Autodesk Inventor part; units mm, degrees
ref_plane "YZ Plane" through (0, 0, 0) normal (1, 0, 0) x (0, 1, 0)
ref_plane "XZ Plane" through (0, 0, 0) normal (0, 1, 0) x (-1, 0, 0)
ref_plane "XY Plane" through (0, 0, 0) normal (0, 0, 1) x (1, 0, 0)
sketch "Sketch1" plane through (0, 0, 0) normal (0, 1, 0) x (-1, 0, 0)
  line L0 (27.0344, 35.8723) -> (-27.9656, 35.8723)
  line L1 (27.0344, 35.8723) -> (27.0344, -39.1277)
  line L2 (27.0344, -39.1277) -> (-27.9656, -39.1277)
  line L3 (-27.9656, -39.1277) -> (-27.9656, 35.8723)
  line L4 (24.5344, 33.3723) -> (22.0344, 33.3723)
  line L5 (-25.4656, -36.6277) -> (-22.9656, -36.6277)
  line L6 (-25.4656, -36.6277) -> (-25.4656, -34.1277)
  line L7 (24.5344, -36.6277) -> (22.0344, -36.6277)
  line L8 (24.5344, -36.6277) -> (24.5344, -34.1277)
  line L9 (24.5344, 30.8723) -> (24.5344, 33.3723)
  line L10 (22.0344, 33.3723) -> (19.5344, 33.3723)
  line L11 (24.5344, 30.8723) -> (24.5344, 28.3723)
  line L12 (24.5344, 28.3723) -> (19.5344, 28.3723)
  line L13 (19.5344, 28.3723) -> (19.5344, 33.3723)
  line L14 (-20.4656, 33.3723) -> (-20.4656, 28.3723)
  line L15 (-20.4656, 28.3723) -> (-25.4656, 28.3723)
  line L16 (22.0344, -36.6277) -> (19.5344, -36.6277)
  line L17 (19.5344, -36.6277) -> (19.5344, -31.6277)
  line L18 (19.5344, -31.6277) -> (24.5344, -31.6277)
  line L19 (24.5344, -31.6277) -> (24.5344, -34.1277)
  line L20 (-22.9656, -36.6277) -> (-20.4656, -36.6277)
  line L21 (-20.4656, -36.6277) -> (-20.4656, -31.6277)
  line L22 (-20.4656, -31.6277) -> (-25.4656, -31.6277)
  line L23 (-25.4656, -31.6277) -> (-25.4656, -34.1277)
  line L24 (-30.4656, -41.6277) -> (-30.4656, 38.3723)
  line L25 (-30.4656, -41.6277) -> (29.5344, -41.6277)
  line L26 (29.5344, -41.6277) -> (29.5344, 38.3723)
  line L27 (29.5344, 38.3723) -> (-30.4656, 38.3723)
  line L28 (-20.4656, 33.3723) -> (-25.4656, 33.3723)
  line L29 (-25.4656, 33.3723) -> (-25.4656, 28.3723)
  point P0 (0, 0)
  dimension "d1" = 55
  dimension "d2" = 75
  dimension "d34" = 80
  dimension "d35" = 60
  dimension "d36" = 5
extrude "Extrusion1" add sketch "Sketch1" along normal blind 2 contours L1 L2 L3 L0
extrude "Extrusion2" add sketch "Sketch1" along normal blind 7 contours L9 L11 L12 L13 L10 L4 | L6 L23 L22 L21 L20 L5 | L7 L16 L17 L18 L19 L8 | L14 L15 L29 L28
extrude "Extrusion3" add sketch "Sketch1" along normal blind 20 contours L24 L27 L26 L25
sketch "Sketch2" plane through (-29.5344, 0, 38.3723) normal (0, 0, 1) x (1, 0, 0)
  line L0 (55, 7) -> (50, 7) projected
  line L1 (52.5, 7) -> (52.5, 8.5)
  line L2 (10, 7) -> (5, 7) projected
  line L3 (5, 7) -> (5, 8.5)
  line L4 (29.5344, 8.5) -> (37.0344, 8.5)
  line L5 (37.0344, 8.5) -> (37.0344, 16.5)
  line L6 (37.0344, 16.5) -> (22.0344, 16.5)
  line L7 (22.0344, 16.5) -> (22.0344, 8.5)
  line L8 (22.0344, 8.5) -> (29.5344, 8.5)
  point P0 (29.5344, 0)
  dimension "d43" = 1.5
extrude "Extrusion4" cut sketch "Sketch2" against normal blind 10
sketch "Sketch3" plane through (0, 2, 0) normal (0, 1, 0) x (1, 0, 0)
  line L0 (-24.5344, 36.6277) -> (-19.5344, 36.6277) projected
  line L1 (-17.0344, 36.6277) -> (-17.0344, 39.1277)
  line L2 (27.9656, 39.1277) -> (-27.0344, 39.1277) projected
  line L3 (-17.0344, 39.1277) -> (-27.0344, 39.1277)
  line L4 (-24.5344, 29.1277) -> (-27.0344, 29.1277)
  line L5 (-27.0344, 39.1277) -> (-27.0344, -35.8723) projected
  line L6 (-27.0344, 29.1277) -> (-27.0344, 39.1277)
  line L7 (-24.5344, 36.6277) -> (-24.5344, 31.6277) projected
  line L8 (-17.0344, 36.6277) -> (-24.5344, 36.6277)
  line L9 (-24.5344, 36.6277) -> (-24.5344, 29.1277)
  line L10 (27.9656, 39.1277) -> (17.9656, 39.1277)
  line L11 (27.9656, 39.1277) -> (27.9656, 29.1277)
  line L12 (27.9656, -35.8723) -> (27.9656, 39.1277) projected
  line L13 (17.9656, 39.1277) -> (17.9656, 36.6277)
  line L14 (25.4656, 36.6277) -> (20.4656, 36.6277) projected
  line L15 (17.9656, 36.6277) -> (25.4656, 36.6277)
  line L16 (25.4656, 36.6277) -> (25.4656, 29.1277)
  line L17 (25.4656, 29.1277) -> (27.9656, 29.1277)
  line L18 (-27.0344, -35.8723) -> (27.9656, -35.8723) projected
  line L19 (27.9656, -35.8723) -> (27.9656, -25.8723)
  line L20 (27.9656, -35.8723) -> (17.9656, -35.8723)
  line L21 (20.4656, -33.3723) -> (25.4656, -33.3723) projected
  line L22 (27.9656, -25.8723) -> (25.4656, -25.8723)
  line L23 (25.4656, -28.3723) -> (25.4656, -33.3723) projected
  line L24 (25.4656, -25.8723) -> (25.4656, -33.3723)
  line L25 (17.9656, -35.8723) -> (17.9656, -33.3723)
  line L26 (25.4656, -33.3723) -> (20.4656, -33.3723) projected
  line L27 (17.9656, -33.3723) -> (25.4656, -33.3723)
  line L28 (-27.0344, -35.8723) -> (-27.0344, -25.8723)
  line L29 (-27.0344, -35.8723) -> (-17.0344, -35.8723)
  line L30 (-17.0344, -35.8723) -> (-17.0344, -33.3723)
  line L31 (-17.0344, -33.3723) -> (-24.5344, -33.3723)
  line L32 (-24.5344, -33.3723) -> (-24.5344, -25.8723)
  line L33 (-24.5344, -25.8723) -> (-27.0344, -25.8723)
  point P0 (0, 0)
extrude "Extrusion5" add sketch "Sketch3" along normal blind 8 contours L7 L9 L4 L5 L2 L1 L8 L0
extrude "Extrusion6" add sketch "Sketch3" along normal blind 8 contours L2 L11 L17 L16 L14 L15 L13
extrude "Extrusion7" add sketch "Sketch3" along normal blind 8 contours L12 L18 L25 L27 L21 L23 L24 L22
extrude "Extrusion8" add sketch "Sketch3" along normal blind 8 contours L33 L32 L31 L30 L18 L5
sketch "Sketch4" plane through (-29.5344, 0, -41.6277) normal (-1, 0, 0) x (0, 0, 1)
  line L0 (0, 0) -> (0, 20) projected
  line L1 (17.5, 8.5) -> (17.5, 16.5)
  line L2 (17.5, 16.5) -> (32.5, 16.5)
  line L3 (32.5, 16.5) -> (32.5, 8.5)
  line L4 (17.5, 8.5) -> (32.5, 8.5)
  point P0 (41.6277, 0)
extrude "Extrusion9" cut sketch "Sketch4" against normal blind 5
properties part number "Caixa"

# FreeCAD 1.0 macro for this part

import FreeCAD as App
import Part
import Sketcher
Q = App.Units.Quantity


def add_polygon(sketch, points):
    """Adds a closed chain of lines whose ends are joined by coincident constraints."""
    first, n = sketch.GeometryCount, len(points)
    for a, b in zip(points, points[1:] + points[:1]):
        sketch.addGeometry(Part.LineSegment(App.Vector(*a, 0), App.Vector(*b, 0)), False)
    for i in range(n):
        sketch.addConstraint(Sketcher.Constraint("Coincident", first + i, 2, first + (i + 1) % n, 1))

doc = App.newDocument("Part")
body = doc.addObject("PartDesign::Body", "Body")

# Sketch on XZ plane
sketch1 = body.newObject("Sketcher::SketchObject", "Sketch")
sketch1.AttachmentSupport = (doc.getObject("XZ_Plane"), [""])
sketch1.MapMode = "FlatFace"
add_polygon(sketch1, [(-27, -39.1), (-27, 35.9), (28, 35.9), (28, -39.1)])  # lines 0-3
add_polygon(sketch1, [(20.5, -36.6), (25.5, -36.6), (25.5, -31.6), (20.5, -31.6)])  # lines 4-7
add_polygon(sketch1, [(-24.5, -31.6), (-24.5, -36.6), (-19.5, -36.6), (-19.5, -31.6)])  # lines 8-11
add_polygon(sketch1, [(25.5, 33.4), (20.5, 33.4), (20.5, 28.4), (25.5, 28.4)])  # lines 12-15
add_polygon(sketch1, [(-19.5, 33.4), (-24.5, 33.4), (-24.5, 28.4), (-19.5, 28.4)])  # lines 16-19
sketch1.addConstraint(Sketcher.Constraint("Vertical", 0))
sketch1.addConstraint(Sketcher.Constraint("Horizontal", 1))
sketch1.addConstraint(Sketcher.Constraint("Vertical", 2))
sketch1.addConstraint(Sketcher.Constraint("Horizontal", 3))
sketch1.addConstraint(Sketcher.Constraint("Horizontal", 4))
sketch1.addConstraint(Sketcher.Constraint("Vertical", 5))
sketch1.addConstraint(Sketcher.Constraint("Horizontal", 6))
sketch1.addConstraint(Sketcher.Constraint("Vertical", 7))
sketch1.addConstraint(Sketcher.Constraint("Vertical", 8))
sketch1.addConstraint(Sketcher.Constraint("Horizontal", 9))
sketch1.addConstraint(Sketcher.Constraint("Vertical", 10))
sketch1.addConstraint(Sketcher.Constraint("Horizontal", 11))
sketch1.addConstraint(Sketcher.Constraint("Horizontal", 12))
sketch1.addConstraint(Sketcher.Constraint("Vertical", 13))
sketch1.addConstraint(Sketcher.Constraint("Horizontal", 14))
sketch1.addConstraint(Sketcher.Constraint("Vertical", 15))
sketch1.addConstraint(Sketcher.Constraint("Horizontal", 16))
sketch1.addConstraint(Sketcher.Constraint("Vertical", 17))
sketch1.addConstraint(Sketcher.Constraint("Horizontal", 18))
sketch1.addConstraint(Sketcher.Constraint("Vertical", 19))
sketch1.addConstraint(Sketcher.Constraint("Horizontal", 7, 2, 8, 2))
sketch1.addConstraint(Sketcher.Constraint("Horizontal", 6, 2, 10, 2))
sketch1.addConstraint(Sketcher.Constraint("Horizontal", 15, 2, 16, 2))
sketch1.addConstraint(Sketcher.Constraint("Horizontal", 14, 2, 17, 2))
sketch1.addConstraint(Sketcher.Constraint("Vertical", 7, 2, 12, 2))
sketch1.addConstraint(Sketcher.Constraint("Vertical", 5, 2, 14, 2))
sketch1.addConstraint(Sketcher.Constraint("Vertical", 11, 2, 16, 2))
sketch1.addConstraint(Sketcher.Constraint("Vertical", 10, 2, 18, 2))
sketch1.addConstraint(Sketcher.Constraint("Equal", 6, 9))
sketch1.addConstraint(Sketcher.Constraint("Equal", 18, 5))
sketch1.addConstraint(Sketcher.Constraint("Equal", 10, 13))
sketch1.addConstraint(Sketcher.Constraint("DistanceX", 1, 1, 1, 2, Q("55 mm")))
sketch1.addConstraint(Sketcher.Constraint("DistanceX", 4, 1, 4, 2, Q("5 mm")))
sketch1.addConstraint(Sketcher.Constraint("DistanceY", 0, 1, 0, 2, Q("75 mm")))
sketch1.addConstraint(Sketcher.Constraint("DistanceY", 6, 2, 13, 2, Q("60 mm")))
sketch1.addConstraint(Sketcher.Constraint("DistanceX", 8, 2, 7, 2, Q("45 mm")))
sketch1.addConstraint(Sketcher.Constraint("DistanceX", 4, 2, 2, 2, Q("2.5 mm")))
sketch1.addConstraint(Sketcher.Constraint("DistanceY", 2, 2, 4, 2, Q("2.5 mm")))
sketch1.addConstraint(Sketcher.Constraint("DistanceX", 0, 2, -1, 1, Q("27.0344 mm")))
sketch1.addConstraint(Sketcher.Constraint("DistanceY", -1, 1, 0, 2, Q("35.8723 mm")))
pad1 = body.newObject("PartDesign::Pad", "Pad")
pad1.Profile = sketch1
pad1.Length = 2
pad1.Reversed = True

# Sketch on XZ plane
sketch2 = body.newObject("Sketcher::SketchObject", "Sketch001")
sketch2.AttachmentSupport = (doc.getObject("XZ_Plane"), [""])
sketch2.MapMode = "FlatFace"
add_polygon(sketch2, [(-24.5, 28.4), (-24.5, 33.4), (-19.5, 33.4), (-19.5, 28.4)])  # lines 0-3
add_polygon(sketch2, [(25.5, -31.6), (25.5, -36.6), (20.5, -36.6), (20.5, -31.6)])  # lines 4-7
add_polygon(sketch2, [(-19.5, -36.6), (-24.5, -36.6), (-24.5, -31.6), (-19.5, -31.6)])  # lines 8-11
add_polygon(sketch2, [(20.5, 28.4), (20.5, 33.4), (25.5, 33.4), (25.5, 28.4)])  # lines 12-15
sketch2.addConstraint(Sketcher.Constraint("Vertical", 0))
sketch2.addConstraint(Sketcher.Constraint("Horizontal", 1))
sketch2.addConstraint(Sketcher.Constraint("Vertical", 2))
sketch2.addConstraint(Sketcher.Constraint("Horizontal", 3))
sketch2.addConstraint(Sketcher.Constraint("Vertical", 4))
sketch2.addConstraint(Sketcher.Constraint("Horizontal", 5))
sketch2.addConstraint(Sketcher.Constraint("Vertical", 6))
sketch2.addConstraint(Sketcher.Constraint("Horizontal", 7))
sketch2.addConstraint(Sketcher.Constraint("Horizontal", 8))
sketch2.addConstraint(Sketcher.Constraint("Vertical", 9))
sketch2.addConstraint(Sketcher.Constraint("Horizontal", 10))
sketch2.addConstraint(Sketcher.Constraint("Vertical", 11))
sketch2.addConstraint(Sketcher.Constraint("Vertical", 12))
sketch2.addConstraint(Sketcher.Constraint("Horizontal", 13))
sketch2.addConstraint(Sketcher.Constraint("Vertical", 14))
sketch2.addConstraint(Sketcher.Constraint("Horizontal", 15))
sketch2.addConstraint(Sketcher.Constraint("Horizontal", 5, 2, 8, 2))
sketch2.addConstraint(Sketcher.Constraint("Horizontal", 7, 2, 9, 2))
sketch2.addConstraint(Sketcher.Constraint("Horizontal", 1, 2, 12, 2))
sketch2.addConstraint(Sketcher.Constraint("Horizontal", 3, 2, 14, 2))
sketch2.addConstraint(Sketcher.Constraint("Vertical", 3, 2, 8, 2))
sketch2.addConstraint(Sketcher.Constraint("Vertical", 2, 2, 10, 2))
sketch2.addConstraint(Sketcher.Constraint("Vertical", 6, 2, 12, 2))
sketch2.addConstraint(Sketcher.Constraint("Vertical", 7, 2, 13, 2))
sketch2.addConstraint(Sketcher.Constraint("Equal", 3, 5))
sketch2.addConstraint(Sketcher.Constraint("Equal", 15, 0))
sketch2.addConstraint(Sketcher.Constraint("Equal", 2, 4))
sketch2.addConstraint(Sketcher.Constraint("DistanceX", 1, 1, 1, 2, Q("5 mm")))
sketch2.addConstraint(Sketcher.Constraint("DistanceY", 6, 2, 2, 2, Q("60 mm")))
sketch2.addConstraint(Sketcher.Constraint("DistanceX", 2, 2, 4, 2, Q("45 mm")))
sketch2.addConstraint(Sketcher.Constraint("DistanceX", 0, 2, -1, 1, Q("24.5344 mm")))
sketch2.addConstraint(Sketcher.Constraint("DistanceY", -1, 1, 0, 2, Q("33.3723 mm")))
pad2 = body.newObject("PartDesign::Pad", "Pad001")
pad2.Profile = sketch2
pad2.Length = 7
pad2.Reversed = True

# Sketch on XZ plane
sketch3 = body.newObject("Sketcher::SketchObject", "Sketch002")
sketch3.AttachmentSupport = (doc.getObject("XZ_Plane"), [""])
sketch3.MapMode = "FlatFace"
add_polygon(sketch3, [(30, 38), (30, -42), (-30, -42), (-30, 38)])  # lines 0-3
add_polygon(sketch3, [(28, 36), (-27, 36), (-27, -39), (28, -39)])  # lines 4-7
sketch3.addConstraint(Sketcher.Constraint("Vertical", 0))
sketch3.addConstraint(Sketcher.Constraint("Horizontal", 1))
sketch3.addConstraint(Sketcher.Constraint("Vertical", 2))
sketch3.addConstraint(Sketcher.Constraint("Horizontal", 3))
sketch3.addConstraint(Sketcher.Constraint("Horizontal", 4))
sketch3.addConstraint(Sketcher.Constraint("Vertical", 5))
sketch3.addConstraint(Sketcher.Constraint("Horizontal", 6))
sketch3.addConstraint(Sketcher.Constraint("Vertical", 7))
sketch3.addConstraint(Sketcher.Constraint("DistanceX", 1, 2, 1, 1, Q("60 mm")))
sketch3.addConstraint(Sketcher.Constraint("DistanceX", 4, 2, 4, 1, Q("55 mm")))
sketch3.addConstraint(Sketcher.Constraint("DistanceY", 0, 2, 0, 1, Q("80 mm")))
sketch3.addConstraint(Sketcher.Constraint("DistanceY", 5, 2, 5, 1, Q("75 mm")))
sketch3.addConstraint(Sketcher.Constraint("DistanceX", 2, 2, 4, 2, Q("2.5 mm")))
sketch3.addConstraint(Sketcher.Constraint("DistanceY", 4, 2, 2, 2, Q("2.5 mm")))
sketch3.addConstraint(Sketcher.Constraint("DistanceX", -1, 1, 0, 2, Q("30.4656 mm")))
sketch3.addConstraint(Sketcher.Constraint("DistanceY", 0, 2, -1, 1, Q("41.6277 mm")))
pad3 = body.newObject("PartDesign::Pad", "Pad002")
pad3.Profile = sketch3
pad3.Length = 20
pad3.Reversed = True

# Sketch on XY plane
sketch4 = body.newObject("Sketcher::SketchObject", "Sketch003")
sketch4.AttachmentSupport = (doc.getObject("XY_Plane"), [""])
sketch4.MapMode = "FlatFace"
sketch4.AttachmentOffset = App.Placement(App.Vector(0, 0, 38.3723), App.Rotation())
add_polygon(sketch4, [(-8, 8), (8, 8), (8, 16), (-8, 16)])  # lines 0-3
sketch4.addConstraint(Sketcher.Constraint("Horizontal", 0))
sketch4.addConstraint(Sketcher.Constraint("Vertical", 1))
sketch4.addConstraint(Sketcher.Constraint("Horizontal", 2))
sketch4.addConstraint(Sketcher.Constraint("Vertical", 3))
sketch4.addConstraint(Sketcher.Constraint("DistanceX", 0, 1, 0, 2, Q("15 mm")))
sketch4.addConstraint(Sketcher.Constraint("DistanceY", 1, 1, 1, 2, Q("8 mm")))
sketch4.addConstraint(Sketcher.Constraint("DistanceX", -1, 1, 0, 2, Q("7.5 mm")))
sketch4.addConstraint(Sketcher.Constraint("DistanceY", -1, 1, 0, 2, Q("8.5 mm")))
pocket1 = body.newObject("PartDesign::Pocket", "Pocket")
pocket1.Profile = sketch4
pocket1.Length = 10

# Sketch on XZ plane
sketch5 = body.newObject("Sketcher::SketchObject", "Sketch004")
sketch5.AttachmentSupport = (doc.getObject("XZ_Plane"), [""])
sketch5.MapMode = "FlatFace"
sketch5.AttachmentOffset = App.Placement(App.Vector(0, 0, -2), App.Rotation())
add_polygon(sketch5, [(-24.5, -29.1), (-24.5, -36.6), (-17, -36.6), (-17, -39.1), (-27, -39.1), (-27, -29.1)])  # lines 0-5
sketch5.addConstraint(Sketcher.Constraint("Vertical", 0))
sketch5.addConstraint(Sketcher.Constraint("Horizontal", 1))
sketch5.addConstraint(Sketcher.Constraint("Vertical", 2))
sketch5.addConstraint(Sketcher.Constraint("Horizontal", 3))
sketch5.addConstraint(Sketcher.Constraint("Vertical", 4))
sketch5.addConstraint(Sketcher.Constraint("Horizontal", 5))
sketch5.addConstraint(Sketcher.Constraint("Equal", 1, 0))
sketch5.addConstraint(Sketcher.Constraint("Equal", 5, 2))
sketch5.addConstraint(Sketcher.Constraint("DistanceX", 3, 2, 3, 1, Q("10 mm")))
sketch5.addConstraint(Sketcher.Constraint("DistanceX", 1, 1, 1, 2, Q("7.5 mm")))
sketch5.addConstraint(Sketcher.Constraint("DistanceX", 0, 2, -1, 1, Q("24.5344 mm")))
sketch5.addConstraint(Sketcher.Constraint("DistanceY", 0, 2, -1, 1, Q("36.6277 mm")))
pad4 = body.newObject("PartDesign::Pad", "Pad003")
pad4.Profile = sketch5
pad4.Length = 8
pad4.Reversed = True

# Sketch on XZ plane
sketch6 = body.newObject("Sketcher::SketchObject", "Sketch005")
sketch6.AttachmentSupport = (doc.getObject("XZ_Plane"), [""])
sketch6.MapMode = "FlatFace"
sketch6.AttachmentOffset = App.Placement(App.Vector(0, 0, -2), App.Rotation())
add_polygon(sketch6, [(28, -39.1), (18, -39.1), (18, -36.6), (25.5, -36.6), (25.5, -29.1), (28, -29.1)])  # lines 0-5
sketch6.addConstraint(Sketcher.Constraint("Horizontal", 0))
sketch6.addConstraint(Sketcher.Constraint("Vertical", 1))
sketch6.addConstraint(Sketcher.Constraint("Horizontal", 2))
sketch6.addConstraint(Sketcher.Constraint("Vertical", 3))
sketch6.addConstraint(Sketcher.Constraint("Horizontal", 4))
sketch6.addConstraint(Sketcher.Constraint("Vertical", 5))
sketch6.addConstraint(Sketcher.Constraint("Equal", 4, 1))
sketch6.addConstraint(Sketcher.Constraint("Equal", 2, 3))
sketch6.addConstraint(Sketcher.Constraint("DistanceX", 0, 2, 0, 1, Q("10 mm")))
sketch6.addConstraint(Sketcher.Constraint("DistanceX", 2, 1, 2, 2, Q("7.5 mm")))
sketch6.addConstraint(Sketcher.Constraint("DistanceX", -1, 1, 0, 2, Q("17.9656 mm")))
sketch6.addConstraint(Sketcher.Constraint("DistanceY", 0, 2, -1, 1, Q("39.1277 mm")))
pad5 = body.newObject("PartDesign::Pad", "Pad004")
pad5.Profile = sketch6
pad5.Length = 8
pad5.Reversed = True

# Sketch on XZ plane
sketch7 = body.newObject("Sketcher::SketchObject", "Sketch006")
sketch7.AttachmentSupport = (doc.getObject("XZ_Plane"), [""])
sketch7.MapMode = "FlatFace"
sketch7.AttachmentOffset = App.Placement(App.Vector(0, 0, -2), App.Rotation())
add_polygon(sketch7, [(28, 35.9), (28, 25.9), (25.5, 25.9), (25.5, 33.4), (18, 33.4), (18, 35.9)])  # lines 0-5
sketch7.addConstraint(Sketcher.Constraint("Vertical", 0))
sketch7.addConstraint(Sketcher.Constraint("Horizontal", 1))
sketch7.addConstraint(Sketcher.Constraint("Vertical", 2))
sketch7.addConstraint(Sketcher.Constraint("Horizontal", 3))
sketch7.addConstraint(Sketcher.Constraint("Vertical", 4))
sketch7.addConstraint(Sketcher.Constraint("Horizontal", 5))
sketch7.addConstraint(Sketcher.Constraint("Equal", 5, 0))
sketch7.addConstraint(Sketcher.Constraint("Equal", 3, 2))
sketch7.addConstraint(Sketcher.Constraint("DistanceX", 5, 1, 5, 2, Q("10 mm")))
sketch7.addConstraint(Sketcher.Constraint("DistanceX", 1, 2, 1, 1, Q("2.5 mm")))
sketch7.addConstraint(Sketcher.Constraint("DistanceX", -1, 1, 0, 2, Q("27.9656 mm")))
sketch7.addConstraint(Sketcher.Constraint("DistanceY", -1, 1, 0, 2, Q("25.8723 mm")))
pad6 = body.newObject("PartDesign::Pad", "Pad005")
pad6.Profile = sketch7
pad6.Length = 8
pad6.Reversed = True

# Sketch on XZ plane
sketch8 = body.newObject("Sketcher::SketchObject", "Sketch007")
sketch8.AttachmentSupport = (doc.getObject("XZ_Plane"), [""])
sketch8.MapMode = "FlatFace"
sketch8.AttachmentOffset = App.Placement(App.Vector(0, 0, -2), App.Rotation())
add_polygon(sketch8, [(-24.5, 25.9), (-27, 25.9), (-27, 35.9), (-17, 35.9), (-17, 33.4), (-24.5, 33.4)])  # lines 0-5
sketch8.addConstraint(Sketcher.Constraint("Horizontal", 0))
sketch8.addConstraint(Sketcher.Constraint("Vertical", 1))
sketch8.addConstraint(Sketcher.Constraint("Horizontal", 2))
sketch8.addConstraint(Sketcher.Constraint("Vertical", 3))
sketch8.addConstraint(Sketcher.Constraint("Horizontal", 4))
sketch8.addConstraint(Sketcher.Constraint("Vertical", 5))
sketch8.addConstraint(Sketcher.Constraint("Equal", 2, 1))
sketch8.addConstraint(Sketcher.Constraint("Equal", 0, 3))
sketch8.addConstraint(Sketcher.Constraint("DistanceX", 2, 1, 2, 2, Q("10 mm")))
sketch8.addConstraint(Sketcher.Constraint("DistanceX", 0, 2, 0, 1, Q("2.5 mm")))
sketch8.addConstraint(Sketcher.Constraint("DistanceX", 0, 2, -1, 1, Q("27.0344 mm")))
sketch8.addConstraint(Sketcher.Constraint("DistanceY", -1, 1, 0, 2, Q("25.8723 mm")))
pad7 = body.newObject("PartDesign::Pad", "Pad006")
pad7.Profile = sketch8
pad7.Length = 8
pad7.Reversed = True

# Sketch on YZ plane
sketch9 = body.newObject("Sketcher::SketchObject", "Sketch008")
sketch9.AttachmentSupport = (doc.getObject("YZ_Plane"), [""])
sketch9.MapMode = "FlatFace"
sketch9.AttachmentOffset = App.Placement(App.Vector(0, 0, -29.5344), App.Rotation())
add_polygon(sketch9, [(16, -24), (8, -24), (8, -9), (16, -9)])  # lines 0-3
sketch9.addConstraint(Sketcher.Constraint("Horizontal", 0))
sketch9.addConstraint(Sketcher.Constraint("Vertical", 1))
sketch9.addConstraint(Sketcher.Constraint("Horizontal", 2))
sketch9.addConstraint(Sketcher.Constraint("Vertical", 3))
sketch9.addConstraint(Sketcher.Constraint("DistanceX", 0, 2, 0, 1, Q("8 mm")))
sketch9.addConstraint(Sketcher.Constraint("DistanceY", 1, 1, 1, 2, Q("15 mm")))
sketch9.addConstraint(Sketcher.Constraint("DistanceX", -1, 1, 0, 2, Q("8.5 mm")))
sketch9.addConstraint(Sketcher.Constraint("DistanceY", 0, 2, -1, 1, Q("24.1277 mm")))
pocket2 = body.newObject("PartDesign::Pocket", "Pocket001")
pocket2.Profile = sketch9
pocket2.Length = 5
pocket2.Reversed = True

doc.recompute()
